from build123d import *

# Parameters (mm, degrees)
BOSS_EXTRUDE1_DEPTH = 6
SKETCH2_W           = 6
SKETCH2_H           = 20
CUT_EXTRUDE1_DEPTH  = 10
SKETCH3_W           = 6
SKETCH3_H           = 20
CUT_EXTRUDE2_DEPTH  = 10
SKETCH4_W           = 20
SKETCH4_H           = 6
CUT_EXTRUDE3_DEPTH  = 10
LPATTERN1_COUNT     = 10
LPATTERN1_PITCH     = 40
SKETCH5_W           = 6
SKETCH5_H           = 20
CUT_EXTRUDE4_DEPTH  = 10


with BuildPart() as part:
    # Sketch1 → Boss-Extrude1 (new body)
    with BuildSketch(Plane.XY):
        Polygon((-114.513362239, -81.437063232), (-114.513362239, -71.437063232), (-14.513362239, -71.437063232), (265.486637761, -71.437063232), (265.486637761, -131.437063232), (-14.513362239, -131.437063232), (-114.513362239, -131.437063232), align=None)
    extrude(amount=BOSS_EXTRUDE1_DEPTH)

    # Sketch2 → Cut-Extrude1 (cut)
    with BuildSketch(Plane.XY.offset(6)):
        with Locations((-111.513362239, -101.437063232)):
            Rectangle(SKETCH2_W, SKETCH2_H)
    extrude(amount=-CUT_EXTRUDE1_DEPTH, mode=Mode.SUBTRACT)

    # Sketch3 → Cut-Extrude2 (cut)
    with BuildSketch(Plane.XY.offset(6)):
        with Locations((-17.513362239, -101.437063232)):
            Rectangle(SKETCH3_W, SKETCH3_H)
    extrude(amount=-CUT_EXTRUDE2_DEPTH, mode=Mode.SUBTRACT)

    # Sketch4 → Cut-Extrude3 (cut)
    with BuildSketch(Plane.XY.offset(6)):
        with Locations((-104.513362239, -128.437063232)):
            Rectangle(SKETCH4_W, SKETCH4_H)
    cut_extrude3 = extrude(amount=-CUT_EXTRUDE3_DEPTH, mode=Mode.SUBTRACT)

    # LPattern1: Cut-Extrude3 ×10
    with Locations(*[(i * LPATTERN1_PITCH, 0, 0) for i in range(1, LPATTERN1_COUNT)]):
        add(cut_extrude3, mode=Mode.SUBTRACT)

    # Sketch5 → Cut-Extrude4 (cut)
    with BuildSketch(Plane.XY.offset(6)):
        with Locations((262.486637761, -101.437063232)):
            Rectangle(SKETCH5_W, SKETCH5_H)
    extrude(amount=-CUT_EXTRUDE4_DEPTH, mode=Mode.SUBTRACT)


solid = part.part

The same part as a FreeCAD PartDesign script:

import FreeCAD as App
import Part
import Sketcher
from FreeCAD import Vector
Q = App.Units.Quantity

doc = App.newDocument("Part")
body = doc.addObject("PartDesign::Body", "Body")

sketch1 = doc.addObject("Sketcher::SketchObject", "Sketch")
body.addObject(sketch1)
sketch1.AttachmentSupport = (doc.XY_Plane, [""])
sketch1.MapMode = "FlatFace"
sketch1.addGeometry([
    Part.LineSegment(Vector(-115, -71, 0), Vector(-115, -131, 0)),
    Part.LineSegment(Vector(-115, -131, 0), Vector(265, -131, 0)),
    Part.LineSegment(Vector(265, -131, 0), Vector(265, -71, 0)),
    Part.LineSegment(Vector(265, -71, 0), Vector(-115, -71, 0)),
], False)
sketch1.addConstraint([
    Sketcher.Constraint("Coincident", 0, 2, 1, 1),
    Sketcher.Constraint("Coincident", 1, 2, 2, 1),
    Sketcher.Constraint("Coincident", 2, 2, 3, 1),
    Sketcher.Constraint("Coincident", 3, 2, 0, 1),
    Sketcher.Constraint("Vertical", 0),
    Sketcher.Constraint("Horizontal", 1),
    Sketcher.Constraint("Vertical", 2),
    Sketcher.Constraint("Horizontal", 3),
    Sketcher.Constraint("DistanceX", 1, 1, 1, 2, Q("380 mm")),
    Sketcher.Constraint("DistanceY", 0, 2, 0, 1, Q("60 mm")),
    Sketcher.Constraint("DistanceX", 0, 2, -1, 1, Q("114.513362 mm")),
    Sketcher.Constraint("DistanceY", 0, 2, -1, 1, Q("131.437063 mm")),
])
pad1 = doc.addObject("PartDesign::Pad", "Pad")
body.addObject(pad1)
pad1.Profile = sketch1
pad1.Length = 6

sketch2 = doc.addObject("Sketcher::SketchObject", "Sketch001")
body.addObject(sketch2)
sketch2.AttachmentSupport = (doc.XY_Plane, [""])
sketch2.MapMode = "FlatFace"
sketch2.AttachmentOffset = App.Placement(Vector(0, 0, 6), App.Rotation())
sketch2.addGeometry([
    Part.LineSegment(Vector(-115, -91, 0), Vector(-115, -111, 0)),
    Part.LineSegment(Vector(-115, -111, 0), Vector(-109, -111, 0)),
    Part.LineSegment(Vector(-109, -111, 0), Vector(-109, -91, 0)),
    Part.LineSegment(Vector(-109, -91, 0), Vector(-115, -91, 0)),
], False)
sketch2.addConstraint([
    Sketcher.Constraint("Coincident", 0, 2, 1, 1),
    Sketcher.Constraint("Coincident", 1, 2, 2, 1),
    Sketcher.Constraint("Coincident", 2, 2, 3, 1),
    Sketcher.Constraint("Coincident", 3, 2, 0, 1),
    Sketcher.Constraint("Vertical", 0),
    Sketcher.Constraint("Horizontal", 1),
    Sketcher.Constraint("Vertical", 2),
    Sketcher.Constraint("Horizontal", 3),
    Sketcher.Constraint("DistanceX", 1, 1, 1, 2, Q("6 mm")),
    Sketcher.Constraint("DistanceY", 0, 2, 0, 1, Q("20 mm")),
    Sketcher.Constraint("DistanceX", 0, 2, -1, 1, Q("114.513362 mm")),
    Sketcher.Constraint("DistanceY", 0, 2, -1, 1, Q("111.437063 mm")),
])
pocket1 = doc.addObject("PartDesign::Pocket", "Pocket")
body.addObject(pocket1)
pocket1.Profile = sketch2
pocket1.Length = 10

sketch3 = doc.addObject("Sketcher::SketchObject", "Sketch002")
body.addObject(sketch3)
sketch3.AttachmentSupport = (doc.XY_Plane, [""])
sketch3.MapMode = "FlatFace"
sketch3.AttachmentOffset = App.Placement(Vector(0, 0, 6), App.Rotation())
sketch3.addGeometry([
    Part.LineSegment(Vector(-21, -91, 0), Vector(-21, -111, 0)),
    Part.LineSegment(Vector(-21, -111, 0), Vector(-15, -111, 0)),
    Part.LineSegment(Vector(-15, -111, 0), Vector(-15, -91, 0)),
    Part.LineSegment(Vector(-15, -91, 0), Vector(-21, -91, 0)),
], False)
sketch3.addConstraint([
    Sketcher.Constraint("Coincident", 0, 2, 1, 1),
    Sketcher.Constraint("Coincident", 1, 2, 2, 1),
    Sketcher.Constraint("Coincident", 2, 2, 3, 1),
    Sketcher.Constraint("Coincident", 3, 2, 0, 1),
    Sketcher.Constraint("Vertical", 0),
    Sketcher.Constraint("Horizontal", 1),
    Sketcher.Constraint("Vertical", 2),
    Sketcher.Constraint("Horizontal", 3),
    Sketcher.Constraint("DistanceX", 1, 1, 1, 2, Q("6 mm")),
    Sketcher.Constraint("DistanceY", 0, 2, 0, 1, Q("20 mm")),
    Sketcher.Constraint("DistanceX", 0, 2, -1, 1, Q("20.513362 mm")),
    Sketcher.Constraint("DistanceY", 0, 2, -1, 1, Q("111.437063 mm")),
])
pocket2 = doc.addObject("PartDesign::Pocket", "Pocket001")
body.addObject(pocket2)
pocket2.Profile = sketch3
pocket2.Length = 10

sketch4 = doc.addObject("Sketcher::SketchObject", "Sketch003")
body.addObject(sketch4)
sketch4.AttachmentSupport = (doc.XY_Plane, [""])
sketch4.MapMode = "FlatFace"
sketch4.AttachmentOffset = App.Placement(Vector(0, 0, 6), App.Rotation())
sketch4.addGeometry([
    Part.LineSegment(Vector(-115, -125, 0), Vector(-115, -131, 0)),
    Part.LineSegment(Vector(-115, -131, 0), Vector(-95, -131, 0)),
    Part.LineSegment(Vector(-95, -131, 0), Vector(-95, -125, 0)),
    Part.LineSegment(Vector(-95, -125, 0), Vector(-115, -125, 0)),
], False)
sketch4.addConstraint([
    Sketcher.Constraint("Coincident", 0, 2, 1, 1),
    Sketcher.Constraint("Coincident", 1, 2, 2, 1),
    Sketcher.Constraint("Coincident", 2, 2, 3, 1),
    Sketcher.Constraint("Coincident", 3, 2, 0, 1),
    Sketcher.Constraint("Vertical", 0),
    Sketcher.Constraint("Horizontal", 1),
    Sketcher.Constraint("Vertical", 2),
    Sketcher.Constraint("Horizontal", 3),
    Sketcher.Constraint("DistanceX", 1, 1, 1, 2, Q("20 mm")),
    Sketcher.Constraint("DistanceY", 0, 2, 0, 1, Q("6 mm")),
    Sketcher.Constraint("DistanceX", 0, 2, -1, 1, Q("114.513362 mm")),
    Sketcher.Constraint("DistanceY", 0, 2, -1, 1, Q("131.437063 mm")),
])
pocket3 = doc.addObject("PartDesign::Pocket", "Pocket002")
body.addObject(pocket3)
pocket3.Profile = sketch4
pocket3.Length = 10
doc.recompute()

linearpattern = doc.addObject("PartDesign::LinearPattern", "LinearPattern")
body.addObject(linearpattern)
linearpattern.Originals = [pocket3]
linearpattern.Direction = (doc.X_Axis, [""])
linearpattern.Mode = "offset"
linearpattern.Offset = 40
linearpattern.Occurrences = 10
body.Tip = linearpattern

sketch5 = doc.addObject("Sketcher::SketchObject", "Sketch004")
body.addObject(sketch5)
sketch5.AttachmentSupport = (doc.XY_Plane, [""])
sketch5.MapMode = "FlatFace"
sketch5.AttachmentOffset = App.Placement(Vector(0, 0, 6), App.Rotation())
sketch5.addGeometry([
    Part.LineSegment(Vector(259, -91, 0), Vector(259, -111, 0)),
    Part.LineSegment(Vector(259, -111, 0), Vector(265, -111, 0)),
    Part.LineSegment(Vector(265, -111, 0), Vector(265, -91, 0)),
    Part.LineSegment(Vector(265, -91, 0), Vector(259, -91, 0)),
], False)
sketch5.addConstraint([
    Sketcher.Constraint("Coincident", 0, 2, 1, 1),
    Sketcher.Constraint("Coincident", 1, 2, 2, 1),
    Sketcher.Constraint("Coincident", 2, 2, 3, 1),
    Sketcher.Constraint("Coincident", 3, 2, 0, 1),
    Sketcher.Constraint("Vertical", 0),
    Sketcher.Constraint("Horizontal", 1),
    Sketcher.Constraint("Vertical", 2),
    Sketcher.Constraint("Horizontal", 3),
    Sketcher.Constraint("DistanceX", 1, 1, 1, 2, Q("6 mm")),
    Sketcher.Constraint("DistanceY", 0, 2, 0, 1, Q("20 mm")),
    Sketcher.Constraint("DistanceX", -1, 1, 0, 2, Q("259.486638 mm")),
    Sketcher.Constraint("DistanceY", 0, 2, -1, 1, Q("111.437063 mm")),
])
pocket4 = doc.addObject("PartDesign::Pocket", "Pocket003")
body.addObject(pocket4)
pocket4.Profile = sketch5
pocket4.Length = 10

doc.recompute()
